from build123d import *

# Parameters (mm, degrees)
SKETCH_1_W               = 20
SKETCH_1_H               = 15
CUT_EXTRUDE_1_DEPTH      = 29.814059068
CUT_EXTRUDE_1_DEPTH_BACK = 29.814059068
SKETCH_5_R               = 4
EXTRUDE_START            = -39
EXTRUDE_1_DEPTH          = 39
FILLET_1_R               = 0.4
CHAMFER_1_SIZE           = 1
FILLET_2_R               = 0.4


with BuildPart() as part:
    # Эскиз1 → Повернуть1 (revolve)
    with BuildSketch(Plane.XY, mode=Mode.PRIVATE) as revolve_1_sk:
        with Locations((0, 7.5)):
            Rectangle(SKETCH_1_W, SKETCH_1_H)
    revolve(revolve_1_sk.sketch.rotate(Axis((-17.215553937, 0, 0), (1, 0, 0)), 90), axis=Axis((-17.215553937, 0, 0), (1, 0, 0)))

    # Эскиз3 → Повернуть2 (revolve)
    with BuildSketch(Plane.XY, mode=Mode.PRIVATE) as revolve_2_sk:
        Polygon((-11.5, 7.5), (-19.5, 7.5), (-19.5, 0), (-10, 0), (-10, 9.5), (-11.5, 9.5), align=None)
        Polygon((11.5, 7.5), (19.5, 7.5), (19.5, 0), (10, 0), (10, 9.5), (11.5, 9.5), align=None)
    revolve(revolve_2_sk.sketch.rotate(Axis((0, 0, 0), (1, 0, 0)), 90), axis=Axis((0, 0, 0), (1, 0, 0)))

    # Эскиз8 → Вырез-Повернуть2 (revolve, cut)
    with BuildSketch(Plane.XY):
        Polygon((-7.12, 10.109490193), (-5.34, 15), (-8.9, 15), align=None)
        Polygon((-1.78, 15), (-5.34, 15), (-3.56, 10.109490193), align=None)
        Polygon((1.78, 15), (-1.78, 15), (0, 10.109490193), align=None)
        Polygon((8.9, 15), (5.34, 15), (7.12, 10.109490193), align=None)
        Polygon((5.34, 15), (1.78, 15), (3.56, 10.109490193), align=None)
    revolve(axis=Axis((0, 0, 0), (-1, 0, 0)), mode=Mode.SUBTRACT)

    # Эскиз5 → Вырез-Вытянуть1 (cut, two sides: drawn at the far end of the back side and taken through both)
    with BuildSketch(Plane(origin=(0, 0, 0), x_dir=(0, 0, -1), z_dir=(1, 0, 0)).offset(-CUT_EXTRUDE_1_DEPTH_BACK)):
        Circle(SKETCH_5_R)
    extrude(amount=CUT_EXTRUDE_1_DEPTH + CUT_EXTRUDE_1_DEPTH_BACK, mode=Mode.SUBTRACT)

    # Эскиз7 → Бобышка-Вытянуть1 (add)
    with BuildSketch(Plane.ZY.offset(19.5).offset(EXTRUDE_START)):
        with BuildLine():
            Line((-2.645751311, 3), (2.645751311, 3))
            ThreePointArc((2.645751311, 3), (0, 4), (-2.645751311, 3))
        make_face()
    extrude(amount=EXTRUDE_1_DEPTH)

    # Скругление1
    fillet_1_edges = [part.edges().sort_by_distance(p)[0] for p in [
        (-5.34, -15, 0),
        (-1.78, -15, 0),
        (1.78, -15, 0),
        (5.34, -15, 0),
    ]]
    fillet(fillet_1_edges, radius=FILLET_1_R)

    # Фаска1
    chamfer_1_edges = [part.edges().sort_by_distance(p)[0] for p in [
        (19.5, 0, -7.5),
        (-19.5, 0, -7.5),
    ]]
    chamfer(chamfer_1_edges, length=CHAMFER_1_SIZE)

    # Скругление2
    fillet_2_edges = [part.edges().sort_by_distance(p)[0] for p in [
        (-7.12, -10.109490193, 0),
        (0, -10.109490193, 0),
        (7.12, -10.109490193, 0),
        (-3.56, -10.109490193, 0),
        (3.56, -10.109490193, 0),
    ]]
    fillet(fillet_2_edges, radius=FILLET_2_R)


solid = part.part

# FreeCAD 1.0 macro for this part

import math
import FreeCAD as App
import Part
import Sketcher

V = App.Vector
Q = App.Units.Quantity


def edges_at(feature, points):
    """Names of the edges that pass closest to the given points."""
    edges = feature.Shape.Edges
    near = lambda p: min(range(len(edges)), key=lambda i: edges[i].distToShape(Part.Vertex(*p))[0])
    return sorted({f"Edge{near(p) + 1}" for p in points})


def add_polygon(sketch, points):
    """Adds a closed chain of lines whose ends are joined by coincident constraints."""
    first, n = sketch.GeometryCount, len(points)
    for a, b in zip(points, points[1:] + points[:1]):
        sketch.addGeometry(Part.LineSegment(App.Vector(*a, 0), App.Vector(*b, 0)), False)
    for i in range(n):
        sketch.addConstraint(Sketcher.Constraint("Coincident", first + i, 2, first + (i + 1) % n, 1))

doc = App.newDocument("Part")
body = doc.addObject("PartDesign::Body", "Body")

sketch1 = body.newObject("Sketcher::SketchObject", "Sketch")
sketch1.AttachmentSupport = (doc.getObject("XY_Plane"), [""])
sketch1.MapMode = "FlatFace"
add_polygon(sketch1, [(-10, 15), (-10, 0), (10, 0), (10, 15)])
sketch1.addConstraint([
    Sketcher.Constraint("Vertical", 0),
    Sketcher.Constraint("Horizontal", 1),
    Sketcher.Constraint("Vertical", 2),
    Sketcher.Constraint("Horizontal", 3),
    Sketcher.Constraint("Symmetric", 0, 2, 1, 2, -1, 1),
    Sketcher.Constraint("DistanceX", 1, 1, 1, 2, Q("20 mm")),
    Sketcher.Constraint("DistanceY", 0, 2, 0, 1, Q("15 mm")),
])
revolution = body.newObject("PartDesign::Revolution", "Revolution")
revolution.Profile = sketch1
revolution.ReferenceAxis = (sketch1, ["H_Axis"])
revolution.Angle = 360

sketch2 = body.newObject("Sketcher::SketchObject", "Sketch001")
sketch2.AttachmentSupport = (doc.getObject("XY_Plane"), [""])
sketch2.MapMode = "FlatFace"
add_polygon(sketch2, [(-11.5, 7.5), (-19.5, 7.5), (-19.5, 0), (-10, 0), (-10, 9.5), (-11.5, 9.5)])
add_polygon(sketch2, [(19.5, 7.5), (11.5, 7.5), (11.5, 9.5), (10, 9.5), (10, 0), (19.5, 0)])
sketch2.addConstraint([
    Sketcher.Constraint("Horizontal", 0),
    Sketcher.Constraint("Vertical", 1),
    Sketcher.Constraint("Horizontal", 2),
    Sketcher.Constraint("Vertical", 3),
    Sketcher.Constraint("Horizontal", 4),
    Sketcher.Constraint("Vertical", 5),
    Sketcher.Constraint("Horizontal", 6),
    Sketcher.Constraint("Vertical", 7),
    Sketcher.Constraint("Horizontal", 8),
    Sketcher.Constraint("Vertical", 9),
    Sketcher.Constraint("Horizontal", 10),
    Sketcher.Constraint("Vertical", 11),
    Sketcher.Constraint("Symmetric", 2, 2, 9, 2, -1, 1),
    Sketcher.Constraint("Symmetric", 5, 2, 6, 2, -2),
    Sketcher.Constraint("Symmetric", 1, 2, 10, 2, -2),
    Sketcher.Constraint("Horizontal", 4, 2, 7, 2),
    Sketcher.Constraint("Equal", 10, 3),
    Sketcher.Constraint("DistanceX", 0, 2, 0, 1, Q("8 mm")),
    Sketcher.Constraint("DistanceY", 5, 2, 5, 1, Q("2 mm")),
    Sketcher.Constraint("DistanceX", 2, 1, 2, 2, Q("9.5 mm")),
    Sketcher.Constraint("DistanceX", 2, 2, -1, 1, Q("10 mm")),
])
revolution2 = body.newObject("PartDesign::Revolution", "Revolution001")
revolution2.Profile = sketch2
revolution2.ReferenceAxis = (sketch2, ["H_Axis"])
revolution2.Angle = 360

sketch3 = body.newObject("Sketcher::SketchObject", "Sketch002")
sketch3.AttachmentSupport = (doc.getObject("XY_Plane"), [""])
sketch3.MapMode = "FlatFace"
add_polygon(sketch3, [(-7.1, 10.1), (-5.3, 15), (-8.9, 15)])
add_polygon(sketch3, [(-1.8, 15), (-5.3, 15), (-3.6, 10.1)])
add_polygon(sketch3, [(1.8, 15), (-1.8, 15), (0, 10.1)])
add_polygon(sketch3, [(8.9, 15), (5.3, 15), (7.1, 10.1)])
add_polygon(sketch3, [(5.3, 15), (1.8, 15), (3.6, 10.1)])
sketch3.addConstraint([
    Sketcher.Constraint("Horizontal", 1),
    Sketcher.Constraint("Horizontal", 3),
    Sketcher.Constraint("Horizontal", 6),
    Sketcher.Constraint("Horizontal", 9),
    Sketcher.Constraint("Horizontal", 12),
    Sketcher.Constraint("Coincident", 3, 2, 0, 2),
    Sketcher.Constraint("Coincident", 6, 2, 5, 2),
    Sketcher.Constraint("Coincident", 12, 2, 8, 2),
    Sketcher.Constraint("Coincident", 14, 2, 9, 2),
    Sketcher.Constraint("Symmetric", 2, 2, 10, 2, -2),
    Sketcher.Constraint("Symmetric", 4, 2, 13, 2, -2),
    Sketcher.Constraint("PointOnObject", 7, 2, -2),
    Sketcher.Constraint("Parallel", 2, 4),
    Sketcher.Constraint("Parallel", 0, 5),
    Sketcher.Constraint("Parallel", 4, 7),
    Sketcher.Constraint("Parallel", 5, 8),
    Sketcher.Constraint("Parallel", 7, 10),
    Sketcher.Constraint("Parallel", 8, 11),
    Sketcher.Constraint("Horizontal", 2, 2, 4, 2),
    Sketcher.Constraint("Horizontal", 4, 2, 7, 2),
    Sketcher.Constraint("Equal", 0, 2),
    Sketcher.Constraint("Angle", 0, Q("70 deg")),
    Sketcher.Constraint("DistanceY", -1, 1, 0, 2, Q("15 mm")),
    Sketcher.Constraint("DistanceX", 1, 2, 1, 1, Q("3.56 mm")),
])
groove = body.newObject("PartDesign::Groove", "Groove")
groove.Profile = sketch3
groove.ReferenceAxis = (sketch3, ["H_Axis"])
groove.Angle = 360

sketch4 = body.newObject("Sketcher::SketchObject", "Sketch003")
sketch4.AttachmentSupport = (doc.getObject("YZ_Plane"), [""])
sketch4.MapMode = "FlatFace"
sketch4.addGeometry(Part.Circle(V(0, 0, 0), V(0, 0, 1), 4), False)
sketch4.addConstraint([
    Sketcher.Constraint("Coincident", 0, 3, -1, 1),
    Sketcher.Constraint("Diameter", 0, Q("8 mm")),
])
pocket1 = body.newObject("PartDesign::Pocket", "Pocket")
pocket1.Profile = sketch4
pocket1.Type = "ThroughAll"
pocket1.Midplane = True

sketch5 = body.newObject("Sketcher::SketchObject", "Sketch004")
sketch5.AttachmentSupport = (doc.getObject("YZ_Plane"), [""])
sketch5.MapMode = "FlatFace"
sketch5.AttachmentOffset = App.Placement(V(0, 0, 19.5), App.Rotation())
sketch5.addGeometry([
    Part.LineSegment(V(3, -2.6, 0), V(3, 2.6, 0)),
    Part.ArcOfCircle(Part.Circle(V(0, 0, 0), V(0, 0, 1), 4), math.radians(-41), math.radians(41)),
], False)
sketch5.addConstraint([
    Sketcher.Constraint("Coincident", 0, 1, 1, 1),
    Sketcher.Constraint("Coincident", 1, 2, 0, 2),
    Sketcher.Constraint("Vertical", 0),
    Sketcher.Constraint("Coincident", 1, 3, -1, 1),
    Sketcher.Constraint("Radius", 1, Q("4 mm")),
    Sketcher.Constraint("DistanceX", -1, 1, 0, 1, Q("3 mm")),
])
pad1 = body.newObject("PartDesign::Pad", "Pad")
pad1.Profile = sketch5
pad1.Length = 39
pad1.Reversed = True
doc.recompute()

fillet = body.newObject("PartDesign::Fillet", "Fillet")
fillet.Base = (pad1, edges_at(pad1, [
    (-5.34, -15, 0),
    (-1.78, -15, 0),
    (1.78, -15, 0),
    (5.34, -15, 0),
]))
fillet.Radius = 0.4
doc.recompute()

chamfer = body.newObject("PartDesign::Chamfer", "Chamfer")
chamfer.Base = (fillet, edges_at(fillet, [(19.5, 0, -7.5), (-19.5, 0, -7.5)]))
chamfer.Size = 1
doc.recompute()

fillet2 = body.newObject("PartDesign::Fillet", "Fillet001")
fillet2.Base = (chamfer, edges_at(chamfer, [
    (-7.12, -10.109, 0),
    (0, -10.109, 0),
    (7.12, -10.109, 0),
    (-3.56, -10.109, 0),
    (3.56, -10.109, 0),
]))
fillet2.Radius = 0.4

doc.recompute()
